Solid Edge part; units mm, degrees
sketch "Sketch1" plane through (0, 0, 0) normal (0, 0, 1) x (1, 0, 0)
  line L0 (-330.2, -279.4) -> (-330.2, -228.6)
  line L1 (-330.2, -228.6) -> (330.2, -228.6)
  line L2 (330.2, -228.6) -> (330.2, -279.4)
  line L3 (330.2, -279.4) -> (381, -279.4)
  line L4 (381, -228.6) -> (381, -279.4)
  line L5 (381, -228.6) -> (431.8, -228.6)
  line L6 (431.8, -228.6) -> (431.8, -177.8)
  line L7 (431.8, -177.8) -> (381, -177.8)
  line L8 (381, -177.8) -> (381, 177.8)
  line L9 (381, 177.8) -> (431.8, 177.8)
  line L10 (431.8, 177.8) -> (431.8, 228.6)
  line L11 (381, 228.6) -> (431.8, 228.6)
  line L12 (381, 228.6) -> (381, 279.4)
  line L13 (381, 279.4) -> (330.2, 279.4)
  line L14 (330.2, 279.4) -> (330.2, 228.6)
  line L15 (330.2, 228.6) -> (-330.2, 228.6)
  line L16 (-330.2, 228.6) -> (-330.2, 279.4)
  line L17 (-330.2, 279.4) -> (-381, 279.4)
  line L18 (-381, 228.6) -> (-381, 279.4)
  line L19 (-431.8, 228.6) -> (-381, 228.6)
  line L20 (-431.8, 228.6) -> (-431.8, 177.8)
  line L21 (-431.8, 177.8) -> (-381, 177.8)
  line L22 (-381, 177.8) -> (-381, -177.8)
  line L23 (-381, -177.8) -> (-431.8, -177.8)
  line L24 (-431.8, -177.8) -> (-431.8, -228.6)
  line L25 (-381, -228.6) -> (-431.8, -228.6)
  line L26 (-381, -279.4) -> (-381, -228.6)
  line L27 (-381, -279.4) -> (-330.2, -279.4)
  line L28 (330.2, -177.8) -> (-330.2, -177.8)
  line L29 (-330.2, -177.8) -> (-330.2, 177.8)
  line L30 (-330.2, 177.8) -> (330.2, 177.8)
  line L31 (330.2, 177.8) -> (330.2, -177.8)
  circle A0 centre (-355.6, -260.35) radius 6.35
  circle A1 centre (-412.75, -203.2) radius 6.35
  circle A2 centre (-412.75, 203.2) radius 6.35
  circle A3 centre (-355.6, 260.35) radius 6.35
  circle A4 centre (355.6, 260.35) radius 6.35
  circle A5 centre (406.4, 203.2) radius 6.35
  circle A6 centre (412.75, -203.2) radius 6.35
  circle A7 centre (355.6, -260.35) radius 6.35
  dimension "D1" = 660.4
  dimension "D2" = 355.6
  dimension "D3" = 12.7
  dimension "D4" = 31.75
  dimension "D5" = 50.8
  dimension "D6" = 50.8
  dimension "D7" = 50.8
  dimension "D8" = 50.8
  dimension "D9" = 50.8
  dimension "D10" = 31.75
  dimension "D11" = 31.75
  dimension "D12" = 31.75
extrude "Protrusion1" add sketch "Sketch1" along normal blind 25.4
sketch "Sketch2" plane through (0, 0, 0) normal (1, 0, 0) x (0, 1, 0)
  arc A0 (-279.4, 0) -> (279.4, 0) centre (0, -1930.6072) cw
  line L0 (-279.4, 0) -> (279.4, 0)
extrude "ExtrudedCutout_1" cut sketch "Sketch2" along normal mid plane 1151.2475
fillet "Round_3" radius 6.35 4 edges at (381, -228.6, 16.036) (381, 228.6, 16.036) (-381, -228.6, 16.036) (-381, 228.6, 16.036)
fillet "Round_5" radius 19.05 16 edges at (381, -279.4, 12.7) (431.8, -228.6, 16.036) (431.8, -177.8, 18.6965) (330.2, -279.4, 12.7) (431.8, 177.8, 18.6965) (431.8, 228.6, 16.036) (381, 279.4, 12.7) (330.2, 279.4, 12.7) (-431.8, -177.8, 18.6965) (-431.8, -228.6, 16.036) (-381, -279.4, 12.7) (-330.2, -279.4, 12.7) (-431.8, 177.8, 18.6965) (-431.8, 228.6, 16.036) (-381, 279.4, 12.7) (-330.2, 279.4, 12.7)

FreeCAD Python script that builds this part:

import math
import FreeCAD as App
import Part
import Sketcher
Q = App.Units.Quantity


def edges_at(feature, points):
    """Names of the edges that pass closest to the given points."""
    edges = feature.Shape.Edges
    near = lambda p: min(range(len(edges)), key=lambda i: edges[i].distToShape(Part.Vertex(*p))[0])
    return sorted({f"Edge{near(p) + 1}" for p in points})

doc = App.newDocument("Part")
params = doc.addObject("Spreadsheet::Sheet", "Params")
for row, (alias, value) in enumerate([
    ("sketch1_diameter", "0.5 in"),
    ("sketch1_width", "2 in"),
    ("sketch1_width2", "26 in"),
    ("sketch1_height", "14 in"),
    ("pad1_length", "1 in"),
    ("sketch2_radius", "76.8 in"),
    ("sketch2_width", "22 in"),
    ("pocket1_length", "45.3247047 in"),
    ("fillet_radius", "0.25 in"),
    ("fillet2_radius", "0.75 in"),
], start=1):
    params.set(f"A{row}", alias)
    params.set(f"B{row}", "=" + value)
    params.setAlias(f"B{row}", alias)

body = doc.addObject("PartDesign::Body", "Body")

sketch1 = doc.addObject("Sketcher::SketchObject", "Sketch")
body.addObject(sketch1)
sketch1.AttachmentSupport = (doc.XY_Plane, [""])
sketch1.MapMode = "FlatFace"
sketch1.addGeometry(Part.LineSegment(App.Vector(-381, -279.4, 0), App.Vector(-330.2, -279.4, 0)), False)
sketch1.addGeometry(Part.LineSegment(App.Vector(-330.2, -279.4, 0), App.Vector(-330.2, -228.6, 0)), False)
sketch1.addGeometry(Part.LineSegment(App.Vector(-330.2, -228.6, 0), App.Vector(330.2, -228.6, 0)), False)
sketch1.addGeometry(Part.LineSegment(App.Vector(330.2, -228.6, 0), App.Vector(330.2, -279.4, 0)), False)
sketch1.addGeometry(Part.LineSegment(App.Vector(330.2, -279.4, 0), App.Vector(381, -279.4, 0)), False)
sketch1.addGeometry(Part.LineSegment(App.Vector(381, -279.4, 0), App.Vector(381, -228.6, 0)), False)
sketch1.addGeometry(Part.LineSegment(App.Vector(381, -228.6, 0), App.Vector(431.8, -228.6, 0)), False)
sketch1.addGeometry(Part.LineSegment(App.Vector(431.8, -228.6, 0), App.Vector(431.8, -177.8, 0)), False)
sketch1.addGeometry(Part.LineSegment(App.Vector(431.8, -177.8, 0), App.Vector(381, -177.8, 0)), False)
sketch1.addGeometry(Part.LineSegment(App.Vector(381, -177.8, 0), App.Vector(381, 177.8, 0)), False)
sketch1.addGeometry(Part.LineSegment(App.Vector(381, 177.8, 0), App.Vector(431.8, 177.8, 0)), False)
sketch1.addGeometry(Part.LineSegment(App.Vector(431.8, 177.8, 0), App.Vector(431.8, 228.6, 0)), False)
sketch1.addGeometry(Part.LineSegment(App.Vector(431.8, 228.6, 0), App.Vector(381, 228.6, 0)), False)
sketch1.addGeometry(Part.LineSegment(App.Vector(381, 228.6, 0), App.Vector(381, 279.4, 0)), False)
sketch1.addGeometry(Part.LineSegment(App.Vector(381, 279.4, 0), App.Vector(330.2, 279.4, 0)), False)
sketch1.addGeometry(Part.LineSegment(App.Vector(330.2, 279.4, 0), App.Vector(330.2, 228.6, 0)), False)
sketch1.addGeometry(Part.LineSegment(App.Vector(330.2, 228.6, 0), App.Vector(-330.2, 228.6, 0)), False)
sketch1.addGeometry(Part.LineSegment(App.Vector(-330.2, 228.6, 0), App.Vector(-330.2, 279.4, 0)), False)
sketch1.addGeometry(Part.LineSegment(App.Vector(-330.2, 279.4, 0), App.Vector(-381, 279.4, 0)), False)
sketch1.addGeometry(Part.LineSegment(App.Vector(-381, 279.4, 0), App.Vector(-381, 228.6, 0)), False)
sketch1.addGeometry(Part.LineSegment(App.Vector(-381, 228.6, 0), App.Vector(-431.8, 228.6, 0)), False)
sketch1.addGeometry(Part.LineSegment(App.Vector(-431.8, 228.6, 0), App.Vector(-431.8, 177.8, 0)), False)
sketch1.addGeometry(Part.LineSegment(App.Vector(-431.8, 177.8, 0), App.Vector(-381, 177.8, 0)), False)
sketch1.addGeometry(Part.LineSegment(App.Vector(-381, 177.8, 0), App.Vector(-381, -177.8, 0)), False)
sketch1.addGeometry(Part.LineSegment(App.Vector(-381, -177.8, 0), App.Vector(-431.8, -177.8, 0)), False)
sketch1.addGeometry(Part.LineSegment(App.Vector(-431.8, -177.8, 0), App.Vector(-431.8, -228.6, 0)), False)
sketch1.addGeometry(Part.LineSegment(App.Vector(-431.8, -228.6, 0), App.Vector(-381, -228.6, 0)), False)
sketch1.addGeometry(Part.LineSegment(App.Vector(-381, -228.6, 0), App.Vector(-381, -279.4, 0)), False)
sketch1.addGeometry(Part.Circle(App.Vector(-355.6, -260.35, 0), App.Vector(0, 0, 1), 6.35), False)
sketch1.addGeometry(Part.Circle(App.Vector(-412.75, -203.2, 0), App.Vector(0, 0, 1), 6.35), False)
sketch1.addGeometry(Part.Circle(App.Vector(355.6, -260.35, 0), App.Vector(0, 0, 1), 6.35), False)
sketch1.addGeometry(Part.Circle(App.Vector(412.75, -203.2, 0), App.Vector(0, 0, 1), 6.35), False)
sketch1.addGeometry(Part.Circle(App.Vector(-412.75, 203.2, 0), App.Vector(0, 0, 1), 6.35), False)
sketch1.addGeometry(Part.Circle(App.Vector(-355.6, 260.35, 0), App.Vector(0, 0, 1), 6.35), False)
sketch1.addGeometry(Part.LineSegment(App.Vector(330.2, 177.8, 0), App.Vector(330.2, -177.8, 0)), False)
sketch1.addGeometry(Part.LineSegment(App.Vector(330.2, -177.8, 0), App.Vector(-330.2, -177.8, 0)), False)
sketch1.addGeometry(Part.LineSegment(App.Vector(-330.2, -177.8, 0), App.Vector(-330.2, 177.8, 0)), False)
sketch1.addGeometry(Part.LineSegment(App.Vector(-330.2, 177.8, 0), App.Vector(330.2, 177.8, 0)), False)
sketch1.addGeometry(Part.Circle(App.Vector(406.4, 203.2, 0), App.Vector(0, 0, 1), 6.35), False)
sketch1.addGeometry(Part.Circle(App.Vector(355.6, 260.35, 0), App.Vector(0, 0, 1), 6.35), False)
sketch1.addConstraint(Sketcher.Constraint("Coincident", 0, 2, 1, 1))
sketch1.addConstraint(Sketcher.Constraint("Coincident", 1, 2, 2, 1))
sketch1.addConstraint(Sketcher.Constraint("Coincident", 2, 2, 3, 1))
sketch1.addConstraint(Sketcher.Constraint("Coincident", 3, 2, 4, 1))
sketch1.addConstraint(Sketcher.Constraint("Coincident", 4, 2, 5, 1))
sketch1.addConstraint(Sketcher.Constraint("Coincident", 5, 2, 6, 1))
sketch1.addConstraint(Sketcher.Constraint("Coincident", 6, 2, 7, 1))
sketch1.addConstraint(Sketcher.Constraint("Coincident", 7, 2, 8, 1))
sketch1.addConstraint(Sketcher.Constraint("Coincident", 8, 2, 9, 1))
sketch1.addConstraint(Sketcher.Constraint("Coincident", 9, 2, 10, 1))
sketch1.addConstraint(Sketcher.Constraint("Coincident", 10, 2, 11, 1))
sketch1.addConstraint(Sketcher.Constraint("Coincident", 11, 2, 12, 1))
sketch1.addConstraint(Sketcher.Constraint("Coincident", 12, 2, 13, 1))
sketch1.addConstraint(Sketcher.Constraint("Coincident", 13, 2, 14, 1))
sketch1.addConstraint(Sketcher.Constraint("Coincident", 14, 2, 15, 1))
sketch1.addConstraint(Sketcher.Constraint("Coincident", 15, 2, 16, 1))
sketch1.addConstraint(Sketcher.Constraint("Coincident", 16, 2, 17, 1))
sketch1.addConstraint(Sketcher.Constraint("Coincident", 17, 2, 18, 1))
sketch1.addConstraint(Sketcher.Constraint("Coincident", 18, 2, 19, 1))
sketch1.addConstraint(Sketcher.Constraint("Coincident", 19, 2, 20, 1))
sketch1.addConstraint(Sketcher.Constraint("Coincident", 20, 2, 21, 1))
sketch1.addConstraint(Sketcher.Constraint("Coincident", 21, 2, 22, 1))
sketch1.addConstraint(Sketcher.Constraint("Coincident", 22, 2, 23, 1))
sketch1.addConstraint(Sketcher.Constraint("Coincident", 23, 2, 24, 1))
sketch1.addConstraint(Sketcher.Constraint("Coincident", 24, 2, 25, 1))
sketch1.addConstraint(Sketcher.Constraint("Coincident", 25, 2, 26, 1))
sketch1.addConstraint(Sketcher.Constraint("Coincident", 26, 2, 27, 1))
sketch1.addConstraint(Sketcher.Constraint("Coincident", 27, 2, 0, 1))
sketch1.addConstraint(Sketcher.Constraint("Coincident", 34, 2, 35, 1))
sketch1.addConstraint(Sketcher.Constraint("Coincident", 35, 2, 36, 1))
sketch1.addConstraint(Sketcher.Constraint("Coincident", 36, 2, 37, 1))
sketch1.addConstraint(Sketcher.Constraint("Coincident", 37, 2, 34, 1))
sketch1.addConstraint(Sketcher.Constraint("Horizontal", 0))
sketch1.addConstraint(Sketcher.Constraint("Vertical", 1))
sketch1.addConstraint(Sketcher.Constraint("Horizontal", 2))
sketch1.addConstraint(Sketcher.Constraint("Vertical", 3))
sketch1.addConstraint(Sketcher.Constraint("Horizontal", 4))
sketch1.addConstraint(Sketcher.Constraint("Vertical", 5))
sketch1.addConstraint(Sketcher.Constraint("Horizontal", 6))
sketch1.addConstraint(Sketcher.Constraint("Vertical", 7))
sketch1.addConstraint(Sketcher.Constraint("Horizontal", 8))
sketch1.addConstraint(Sketcher.Constraint("Vertical", 9))
sketch1.addConstraint(Sketcher.Constraint("Horizontal", 10))
sketch1.addConstraint(Sketcher.Constraint("Vertical", 11))
sketch1.addConstraint(Sketcher.Constraint("Horizontal", 12))
sketch1.addConstraint(Sketcher.Constraint("Vertical", 13))
sketch1.addConstraint(Sketcher.Constraint("Horizontal", 14))
sketch1.addConstraint(Sketcher.Constraint("Vertical", 15))
sketch1.addConstraint(Sketcher.Constraint("Horizontal", 16))
sketch1.addConstraint(Sketcher.Constraint("Vertical", 17))
sketch1.addConstraint(Sketcher.Constraint("Horizontal", 18))
sketch1.addConstraint(Sketcher.Constraint("Vertical", 19))
sketch1.addConstraint(Sketcher.Constraint("Horizontal", 20))
sketch1.addConstraint(Sketcher.Constraint("Vertical", 21))
sketch1.addConstraint(Sketcher.Constraint("Horizontal", 22))
sketch1.addConstraint(Sketcher.Constraint("Vertical", 23))
sketch1.addConstraint(Sketcher.Constraint("Horizontal", 24))
sketch1.addConstraint(Sketcher.Constraint("Vertical", 25))
sketch1.addConstraint(Sketcher.Constraint("Horizontal", 26))
sketch1.addConstraint(Sketcher.Constraint("Vertical", 27))
sketch1.addConstraint(Sketcher.Constraint("Vertical", 34))
sketch1.addConstraint(Sketcher.Constraint("Horizontal", 35))
sketch1.addConstraint(Sketcher.Constraint("Vertical", 36))
sketch1.addConstraint(Sketcher.Constraint("Horizontal", 37))
sketch1.addConstraint(Sketcher.Constraint("Equal", 28, 29))
sketch1.addConstraint(Sketcher.Constraint("Equal", 29, 30))
sketch1.addConstraint(Sketcher.Constraint("Equal", 30, 31))
sketch1.addConstraint(Sketcher.Constraint("Equal", 31, 32))
sketch1.addConstraint(Sketcher.Constraint("Equal", 32, 33))
sketch1.addConstraint(Sketcher.Constraint("Equal", 33, 38))
sketch1.addConstraint(Sketcher.Constraint("Equal", 38, 39))
sketch1.addConstraint(Sketcher.Constraint("Symmetric", 31, 3, 32, 3, -1, 1))
sketch1.addConstraint(Sketcher.Constraint("Symmetric", 30, 3, 33, 3, -1, 1))
sketch1.addConstraint(Sketcher.Constraint("Symmetric", 28, 3, 39, 3, -1, 1))
sketch1.addConstraint(Sketcher.Constraint("Symmetric", 0, 2, 14, 2, -1, 1))
sketch1.addConstraint(Sketcher.Constraint("Symmetric", 2, 2, 16, 2, -1, 1))
sketch1.addConstraint(Sketcher.Constraint("Symmetric", 4, 2, 18, 2, -1, 1))
sketch1.addConstraint(Sketcher.Constraint("Symmetric", 6, 2, 20, 2, -1, 1))
sketch1.addConstraint(Sketcher.Constraint("Symmetric", 8, 2, 22, 2, -1, 1))
sketch1.addConstraint(Sketcher.Constraint("Symmetric", 10, 2, 24, 2, -1, 1))
sketch1.addConstraint(Sketcher.Constraint("Symmetric", 12, 2, 26, 2, -1, 1))
sketch1.addConstraint(Sketcher.Constraint("Symmetric", 34, 2, 36, 2, -1, 1))
sketch1.addConstraint(Sketcher.Constraint("Symmetric", 28, 3, 30, 3, -2))
sketch1.addConstraint(Sketcher.Constraint("Symmetric", 29, 3, 31, 3, -2))
sketch1.addConstraint(Sketcher.Constraint("Symmetric", 0, 2, 3, 2, -2))
sketch1.addConstraint(Sketcher.Constraint("Symmetric", 12, 2, 19, 2, -2))
sketch1.addConstraint(Sketcher.Constraint("Symmetric", 10, 2, 21, 2, -2))
sketch1.addConstraint(Sketcher.Constraint("Horizontal", 32, 3, 38, 3))
sketch1.addConstraint(Sketcher.Constraint("Horizontal", 2, 2, 5, 2))
sketch1.addConstraint(Sketcher.Constraint("Horizontal", 24, 2, 34, 2))
sketch1.addConstraint(Sketcher.Constraint("Vertical", 5, 2, 8, 2))
sketch1.addConstraint(Sketcher.Constraint("Vertical", 15, 2, 34, 2))
sketch1.addConstraint(Sketcher.Constraint("Equal", 4, 6))
sketch1.addConstraint(Sketcher.Constraint("Equal", 26, 1))
sketch1.addConstraint(Sketcher.Constraint("Equal", 5, 7))
sketch1.addConstraint(Sketcher.Constraint("Diameter", 28, Q("0.5 in")))
sketch1.addConstraint(Sketcher.Constraint("DistanceX", 0, 1, 0, 2, Q("2 in")))
sketch1.addConstraint(Sketcher.Constraint("DistanceX", 2, 1, 2, 2, Q("26 in")))
sketch1.addConstraint(Sketcher.Constraint("DistanceY", 9, 1, 9, 2, Q("14 in")))
sketch1.addConstraint(Sketcher.Constraint("DistanceX", 28, 3, -1, 1, Q("14 in")))
sketch1.addConstraint(Sketcher.Constraint("DistanceY", 29, 3, -1, 1, Q("8 in")))
sketch1.addConstraint(Sketcher.Constraint("DistanceX", -1, 1, 38, 3, Q("16 in")))
sketch1.addConstraint(Sketcher.Constraint("DistanceX", 29, 3, 31, 3, Q("32.5 in")))
sketch1.addConstraint(Sketcher.Constraint("DistanceY", 28, 3, 33, 3, Q("20.5 in")))
sketch1.setExpression("Constraints[95]", "Params.sketch1_diameter")
sketch1.setExpression("Constraints[96]", "Params.sketch1_width")
sketch1.setExpression("Constraints[97]", "Params.sketch1_width2")
sketch1.setExpression("Constraints[98]", "Params.sketch1_height")
pad1 = doc.addObject("PartDesign::Pad", "Pad")
body.addObject(pad1)
pad1.Profile = sketch1
pad1.setExpression("Length", "Params.pad1_length")

sketch2 = doc.addObject("Sketcher::SketchObject", "Sketch001")
body.addObject(sketch2)
sketch2.AttachmentSupport = (doc.YZ_Plane, [""])
sketch2.MapMode = "FlatFace"
sketch2.addGeometry(Part.ArcOfCircle(Part.Circle(App.Vector(0, -1930.6072, 0), App.Vector(0, 0, 1), 1950.720001), math.radians(81.765252), math.radians(98.234748)), False)
sketch2.addGeometry(Part.LineSegment(App.Vector(-279.4, 0, 0), App.Vector(279.4, 0, 0)), False)
sketch2.addConstraint(Sketcher.Constraint("Coincident", 0, 1, 1, 2))
sketch2.addConstraint(Sketcher.Constraint("Coincident", 1, 1, 0, 2))
sketch2.addConstraint(Sketcher.Constraint("Horizontal", 1))
sketch2.addConstraint(Sketcher.Constraint("PointOnObject", 0, 3, -2))
sketch2.addConstraint(Sketcher.Constraint("PointOnObject", 0, 1, -1))
sketch2.addConstraint(Sketcher.Constraint("Radius", 0, Q("76.8 in")))
sketch2.addConstraint(Sketcher.Constraint("DistanceX", 1, 1, 1, 2, Q("22 in")))
sketch2.setExpression("Constraints[5]", "Params.sketch2_radius")
sketch2.setExpression("Constraints[6]", "Params.sketch2_width")
pocket1 = doc.addObject("PartDesign::Pocket", "Pocket")
body.addObject(pocket1)
pocket1.Profile = sketch2
pocket1.setExpression("Length", "Params.pocket1_length")
pocket1.Midplane = True
doc.recompute()

fillet = doc.addObject("PartDesign::Fillet", "Fillet")
body.addObject(fillet)
fillet.Base = (pocket1, edges_at(pocket1, [
    (381, -228.6, 16.036),
    (381, 228.6, 16.036),
    (-381, -228.6, 16.036),
    (-381, 228.6, 16.036),
]))
fillet.setExpression("Radius", "Params.fillet_radius")
doc.recompute()

fillet2 = doc.addObject("PartDesign::Fillet", "Fillet001")
body.addObject(fillet2)
fillet2.Base = (fillet, edges_at(fillet, [
    (381, -279.4, 12.7),
    (431.8, -228.6, 16.036),
    (431.8, -177.8, 18.697),
    (330.2, -279.4, 12.7),
    (431.8, 177.8, 18.697),
    (431.8, 228.6, 16.036),
    (381, 279.4, 12.7),
    (330.2, 279.4, 12.7),
    (-431.8, -177.8, 18.697),
    (-431.8, -228.6, 16.036),
    (-381, -279.4, 12.7),
    (-330.2, -279.4, 12.7),
    (-431.8, 177.8, 18.697),
    (-431.8, 228.6, 16.036),
    (-381, 279.4, 12.7),
    (-330.2, 279.4, 12.7),
]))
fillet2.setExpression("Radius", "Params.fillet2_radius")

doc.recompute()
